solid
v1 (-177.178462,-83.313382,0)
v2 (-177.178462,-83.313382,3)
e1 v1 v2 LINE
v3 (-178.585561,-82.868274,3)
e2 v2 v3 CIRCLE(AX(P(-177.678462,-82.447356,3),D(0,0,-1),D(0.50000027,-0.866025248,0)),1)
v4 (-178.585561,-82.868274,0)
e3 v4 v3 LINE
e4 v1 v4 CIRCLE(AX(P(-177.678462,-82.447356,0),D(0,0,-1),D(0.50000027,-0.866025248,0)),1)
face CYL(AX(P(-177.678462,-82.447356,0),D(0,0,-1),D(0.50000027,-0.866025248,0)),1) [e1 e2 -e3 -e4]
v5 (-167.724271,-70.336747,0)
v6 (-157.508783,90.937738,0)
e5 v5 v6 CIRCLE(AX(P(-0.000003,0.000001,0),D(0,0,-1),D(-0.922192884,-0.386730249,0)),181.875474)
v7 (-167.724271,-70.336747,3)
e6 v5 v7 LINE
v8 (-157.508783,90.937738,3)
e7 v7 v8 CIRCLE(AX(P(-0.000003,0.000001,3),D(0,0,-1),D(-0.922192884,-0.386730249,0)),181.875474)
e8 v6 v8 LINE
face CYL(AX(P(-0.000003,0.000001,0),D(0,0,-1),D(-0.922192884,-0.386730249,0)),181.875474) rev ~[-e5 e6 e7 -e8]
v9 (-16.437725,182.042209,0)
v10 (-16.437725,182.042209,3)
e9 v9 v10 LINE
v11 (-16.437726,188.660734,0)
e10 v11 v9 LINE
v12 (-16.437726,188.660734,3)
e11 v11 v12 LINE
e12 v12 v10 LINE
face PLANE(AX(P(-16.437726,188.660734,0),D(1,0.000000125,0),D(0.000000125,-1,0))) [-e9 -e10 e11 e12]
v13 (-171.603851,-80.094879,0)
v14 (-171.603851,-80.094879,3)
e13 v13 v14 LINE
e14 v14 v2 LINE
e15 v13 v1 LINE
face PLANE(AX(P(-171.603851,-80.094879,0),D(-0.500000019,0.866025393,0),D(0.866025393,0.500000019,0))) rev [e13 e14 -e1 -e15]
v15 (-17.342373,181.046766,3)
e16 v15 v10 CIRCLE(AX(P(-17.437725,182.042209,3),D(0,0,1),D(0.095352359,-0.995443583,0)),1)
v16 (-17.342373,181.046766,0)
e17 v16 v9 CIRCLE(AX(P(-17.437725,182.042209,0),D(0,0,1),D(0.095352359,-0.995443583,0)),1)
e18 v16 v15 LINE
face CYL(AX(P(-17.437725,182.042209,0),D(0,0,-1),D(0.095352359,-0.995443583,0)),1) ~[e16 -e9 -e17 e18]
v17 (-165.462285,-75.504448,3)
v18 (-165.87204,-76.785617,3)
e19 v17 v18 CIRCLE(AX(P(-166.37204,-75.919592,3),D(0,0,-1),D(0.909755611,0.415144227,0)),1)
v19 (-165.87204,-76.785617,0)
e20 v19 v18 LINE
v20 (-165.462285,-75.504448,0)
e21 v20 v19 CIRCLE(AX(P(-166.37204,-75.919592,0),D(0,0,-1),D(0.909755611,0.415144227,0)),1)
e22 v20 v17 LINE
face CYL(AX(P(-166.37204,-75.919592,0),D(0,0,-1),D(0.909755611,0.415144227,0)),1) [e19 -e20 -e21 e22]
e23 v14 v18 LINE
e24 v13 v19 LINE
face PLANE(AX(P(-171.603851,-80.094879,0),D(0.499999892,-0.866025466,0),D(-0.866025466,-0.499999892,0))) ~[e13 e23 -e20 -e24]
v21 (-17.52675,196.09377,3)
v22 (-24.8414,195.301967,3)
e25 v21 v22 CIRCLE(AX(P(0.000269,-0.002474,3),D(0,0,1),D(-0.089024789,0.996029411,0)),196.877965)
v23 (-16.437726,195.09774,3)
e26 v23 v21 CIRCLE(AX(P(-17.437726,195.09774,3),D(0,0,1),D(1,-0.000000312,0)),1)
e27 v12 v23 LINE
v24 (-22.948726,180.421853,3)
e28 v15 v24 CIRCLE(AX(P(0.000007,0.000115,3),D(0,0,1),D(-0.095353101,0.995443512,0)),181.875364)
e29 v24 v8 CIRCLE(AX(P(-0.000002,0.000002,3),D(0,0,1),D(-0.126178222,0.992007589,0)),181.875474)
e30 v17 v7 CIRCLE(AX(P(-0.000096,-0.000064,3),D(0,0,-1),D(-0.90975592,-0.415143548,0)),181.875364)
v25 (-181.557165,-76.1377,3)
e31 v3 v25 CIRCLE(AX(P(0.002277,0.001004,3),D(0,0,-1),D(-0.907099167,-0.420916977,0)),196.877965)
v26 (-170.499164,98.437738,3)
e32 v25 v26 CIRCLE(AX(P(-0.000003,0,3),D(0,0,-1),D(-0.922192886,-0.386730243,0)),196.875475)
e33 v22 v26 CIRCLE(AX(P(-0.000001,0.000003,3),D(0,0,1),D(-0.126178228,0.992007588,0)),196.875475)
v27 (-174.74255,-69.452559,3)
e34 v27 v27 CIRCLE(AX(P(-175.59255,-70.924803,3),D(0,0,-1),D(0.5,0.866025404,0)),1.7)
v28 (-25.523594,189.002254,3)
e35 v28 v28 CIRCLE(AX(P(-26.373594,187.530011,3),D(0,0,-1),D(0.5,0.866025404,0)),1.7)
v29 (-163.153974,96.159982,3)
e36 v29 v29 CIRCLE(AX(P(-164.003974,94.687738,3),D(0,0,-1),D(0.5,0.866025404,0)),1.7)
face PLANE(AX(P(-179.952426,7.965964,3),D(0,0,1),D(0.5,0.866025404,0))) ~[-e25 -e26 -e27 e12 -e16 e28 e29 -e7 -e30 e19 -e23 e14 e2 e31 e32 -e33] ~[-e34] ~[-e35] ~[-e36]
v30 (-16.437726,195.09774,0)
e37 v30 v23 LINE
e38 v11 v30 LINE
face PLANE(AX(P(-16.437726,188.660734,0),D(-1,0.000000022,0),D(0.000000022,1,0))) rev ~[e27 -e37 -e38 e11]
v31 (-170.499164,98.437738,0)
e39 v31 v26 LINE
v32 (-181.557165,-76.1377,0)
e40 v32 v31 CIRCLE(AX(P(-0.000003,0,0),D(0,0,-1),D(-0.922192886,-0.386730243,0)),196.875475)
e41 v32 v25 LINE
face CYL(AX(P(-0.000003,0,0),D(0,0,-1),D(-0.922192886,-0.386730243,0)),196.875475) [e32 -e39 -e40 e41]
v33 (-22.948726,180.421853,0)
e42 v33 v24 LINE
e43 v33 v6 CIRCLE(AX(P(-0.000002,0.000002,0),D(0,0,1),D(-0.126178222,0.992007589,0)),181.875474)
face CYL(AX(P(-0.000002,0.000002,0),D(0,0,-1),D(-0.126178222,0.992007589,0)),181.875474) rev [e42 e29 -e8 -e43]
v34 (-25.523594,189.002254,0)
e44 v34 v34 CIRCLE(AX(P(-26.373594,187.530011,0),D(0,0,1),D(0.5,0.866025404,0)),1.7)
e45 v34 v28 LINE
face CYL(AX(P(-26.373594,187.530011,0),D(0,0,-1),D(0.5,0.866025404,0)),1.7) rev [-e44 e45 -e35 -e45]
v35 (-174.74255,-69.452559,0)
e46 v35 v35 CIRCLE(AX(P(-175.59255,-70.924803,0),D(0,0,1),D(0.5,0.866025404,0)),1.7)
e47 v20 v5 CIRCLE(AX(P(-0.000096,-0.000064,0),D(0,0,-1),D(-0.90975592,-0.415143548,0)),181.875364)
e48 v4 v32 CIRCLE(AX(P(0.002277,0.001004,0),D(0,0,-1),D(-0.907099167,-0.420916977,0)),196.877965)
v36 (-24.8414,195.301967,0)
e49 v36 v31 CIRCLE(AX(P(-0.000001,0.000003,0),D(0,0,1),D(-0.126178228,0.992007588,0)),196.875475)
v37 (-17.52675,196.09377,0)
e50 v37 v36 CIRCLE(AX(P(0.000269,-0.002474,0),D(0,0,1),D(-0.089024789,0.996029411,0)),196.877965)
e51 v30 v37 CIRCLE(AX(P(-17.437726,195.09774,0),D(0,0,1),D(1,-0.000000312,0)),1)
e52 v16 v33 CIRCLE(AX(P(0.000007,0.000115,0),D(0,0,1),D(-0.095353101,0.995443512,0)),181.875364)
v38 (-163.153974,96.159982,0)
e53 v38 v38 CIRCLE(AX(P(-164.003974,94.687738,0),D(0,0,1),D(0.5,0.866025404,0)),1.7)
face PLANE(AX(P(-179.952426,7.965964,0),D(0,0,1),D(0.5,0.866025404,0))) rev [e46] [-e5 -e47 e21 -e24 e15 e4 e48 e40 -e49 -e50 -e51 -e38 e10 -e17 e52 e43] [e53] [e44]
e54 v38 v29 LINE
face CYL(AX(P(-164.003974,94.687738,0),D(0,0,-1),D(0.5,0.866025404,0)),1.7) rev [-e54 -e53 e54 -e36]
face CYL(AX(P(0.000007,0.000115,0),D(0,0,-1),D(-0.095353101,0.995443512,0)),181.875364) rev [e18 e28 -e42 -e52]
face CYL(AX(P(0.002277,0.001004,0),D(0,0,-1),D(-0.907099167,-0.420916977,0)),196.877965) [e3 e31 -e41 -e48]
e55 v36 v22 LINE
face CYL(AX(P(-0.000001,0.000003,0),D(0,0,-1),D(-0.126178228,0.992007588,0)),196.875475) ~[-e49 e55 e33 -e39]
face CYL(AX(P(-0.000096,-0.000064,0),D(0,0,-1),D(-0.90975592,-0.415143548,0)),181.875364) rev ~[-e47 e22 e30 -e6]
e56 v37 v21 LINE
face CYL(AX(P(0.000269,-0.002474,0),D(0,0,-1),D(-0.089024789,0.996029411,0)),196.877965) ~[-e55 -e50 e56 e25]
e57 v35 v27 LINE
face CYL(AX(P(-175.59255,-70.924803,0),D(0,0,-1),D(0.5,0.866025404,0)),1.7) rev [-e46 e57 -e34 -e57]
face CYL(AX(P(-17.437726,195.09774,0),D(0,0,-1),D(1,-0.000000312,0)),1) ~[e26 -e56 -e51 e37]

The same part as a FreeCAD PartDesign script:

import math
import FreeCAD as App
import Part
import Sketcher

doc = App.newDocument("Part")
params = doc.addObject("Spreadsheet::Sheet", "Params")
for row, (alias, value) in enumerate([
    ("sketch1_radius", "1 mm"),
    ("sketch1_radius2", "1 mm"),
    ("sketch1_height", "15 mm"),
    ("sketch1_width", "0.5 mm"),
    ("pad1_length", "3 mm"),
    ("sketch2_diameter", "3.4 mm"),
    ("sketch3_diameter", "3.4 mm"),
], start=1):
    params.set(f"A{row}", alias)
    params.set(f"B{row}", "=" + value)
    params.setAlias(f"B{row}", alias)

body = doc.addObject("PartDesign::Body", "Body")

# Sketch on XY plane
sketch1 = body.newObject("Sketcher::SketchObject", "Sketch")
sketch1.AttachmentSupport = (doc.getObject("XY_Plane"), [""])
sketch1.MapMode = "FlatFace"
sketch1.addGeometry([
    Part.ArcOfCircle(Part.Circle(App.Vector(0.000001, 0.000002, 0), App.Vector(0, 0, 1), 196.875475), math.radians(37.248802), math.radians(90)),  # 0
    Part.LineSegment(App.Vector(0, 196.875477, 0), App.Vector(0, 181.875477, 0)),  # 1
    Part.ArcOfCircle(Part.Circle(App.Vector(0.000001, 0.000003, 0), App.Vector(0, 0, 1), 181.875474), math.radians(37.248802), math.radians(90)),  # 2
    Part.ArcOfCircle(Part.Circle(App.Vector(0.000103, 0.000051, 0), App.Vector(0, 0, 1), 181.875364), math.radians(35.471643), math.radians(37.248809)),  # 3
    Part.ArcOfCircle(Part.Circle(App.Vector(148.934315, 106.122617, 0), App.Vector(0, 0, 1), 1), math.radians(-144.528399), math.radians(-60.000001)),  # 4
    Part.LineSegment(App.Vector(149.434315, 105.256592, 0), App.Vector(155.166125, 108.565855, 0)),  # 5
    Part.LineSegment(App.Vector(155.166125, 108.565855, 0), App.Vector(160.740736, 111.784358, 0)),  # 6
    Part.ArcOfCircle(Part.Circle(App.Vector(160.240736, 112.650384, 0), App.Vector(0, 0, 1), 1), math.radians(-60.000018), math.radians(35.10748)),  # 7
    Part.ArcOfCircle(Part.Circle(App.Vector(-0.002008, -0.00147, 0), App.Vector(0, 0, 1), 196.877965), math.radians(35.107506), math.radians(37.248789)),  # 8
], False)
sketch1.addConstraint([
    Sketcher.Constraint("Coincident", 0, 2, 1, 1),
    Sketcher.Constraint("Coincident", 1, 2, 2, 2),
    Sketcher.Constraint("Coincident", 2, 1, 3, 2),
    Sketcher.Constraint("Coincident", 3, 1, 4, 1),
    Sketcher.Constraint("Coincident", 4, 2, 5, 1),
    Sketcher.Constraint("Coincident", 5, 2, 6, 1),
    Sketcher.Constraint("Coincident", 6, 2, 7, 1),
    Sketcher.Constraint("Coincident", 7, 2, 8, 1),
    Sketcher.Constraint("Coincident", 8, 2, 0, 1),
    Sketcher.Constraint("Vertical", 1),
    Sketcher.Constraint("Coincident", 0, 3, -1, 1),
    Sketcher.Constraint("Coincident", 2, 3, -1, 1),
    Sketcher.Constraint("PointOnObject", 0, 2, -2),
    Sketcher.Constraint("Radius", 4, 1.0),
    Sketcher.Constraint("Radius", 7, 1.0),
    Sketcher.Constraint("DistanceY", 1, 2, 1, 1, 15.0),
    Sketcher.Constraint("DistanceX", 4, 3, 4, 2, 0.5),
    Sketcher.Constraint("DistanceX", 7, 3, 6, 2, 0.5),
    Sketcher.Constraint("Radius", 0, 196.875475),
    Sketcher.Constraint("Radius", 3, 181.875364),
    Sketcher.Constraint("Radius", 8, 196.877965),
    Sketcher.Constraint("DistanceX", 0, 3, 3, 3, 0.000102),
    Sketcher.Constraint("DistanceY", 3, 1, 4, 3, 0.580299),
    Sketcher.Constraint("DistanceY", 8, 3, -1, 1, 0.00147),
    Sketcher.Constraint("DistanceX", -1, 1, 3, 1, 148.119912),
    Sketcher.Constraint("DistanceX", -1, 1, 7, 2, 161.058811),
    Sketcher.Constraint("DistanceX", 4, 3, 7, 3, 11.306421),
    Sketcher.Constraint("DistanceX", 2, 1, 4, 3, 4.15877),
    Sketcher.Constraint("DistanceX", 5, 2, 7, 3, 5.074611),
    Sketcher.Constraint("DistanceY", 5, 2, 7, 3, 4.084529),
    Sketcher.Constraint("DistanceY", 7, 2, 8, 2, 5.938771),
])
sketch1.setExpression("Constraints[13]", "Params.sketch1_radius")
sketch1.setExpression("Constraints[14]", "Params.sketch1_radius2")
sketch1.setExpression("Constraints[15]", "Params.sketch1_height")
sketch1.setExpression("Constraints[16]", "Params.sketch1_width")
pad1 = body.newObject("PartDesign::Pad", "Pad")
pad1.Profile = sketch1
pad1.setExpression("Length", "Params.pad1_length")
doc.recompute()

mirrored = body.newObject("PartDesign::Mirrored", "Mirrored")
mirrored.Originals = [pad1]
mirrored.MirrorPlane = (doc.getObject("YZ_Plane"), [""])
body.Tip = mirrored

# Sketch on XY plane
sketch2 = body.newObject("Sketcher::SketchObject", "Sketch001")
sketch2.AttachmentSupport = (doc.getObject("XY_Plane"), [""])
sketch2.MapMode = "FlatFace"
sketch2.addGeometry([
    Part.Circle(App.Vector(149.2, 116.6, 0), App.Vector(0, 0, 1), 1.7),
    Part.Circle(App.Vector(-149.2, 116.6, 0), App.Vector(0, 0, 1), 1.7),
], False)
sketch2.addConstraint([
    Sketcher.Constraint("Equal", 0, 1),
    Sketcher.Constraint("Symmetric", 0, 3, 1, 3, -2),
    Sketcher.Constraint("Diameter", 0, 3.4),
    Sketcher.Constraint("DistanceY", -1, 1, 0, 3, 116.605208),
    Sketcher.Constraint("DistanceX", 1, 3, 0, 3, 298.437912),
])
sketch2.setExpression("Constraints[2]", "Params.sketch2_diameter")
pocket1 = body.newObject("PartDesign::Pocket", "Pocket")
pocket1.Profile = sketch2
pocket1.Type = "ThroughAll"
pocket1.Midplane = True

# Sketch on XY plane
sketch3 = body.newObject("Sketcher::SketchObject", "Sketch002")
sketch3.AttachmentSupport = (doc.getObject("XY_Plane"), [""])
sketch3.MapMode = "FlatFace"
sketch3.addGeometry(Part.Circle(App.Vector(0, 189.4, 0), App.Vector(0, 0, 1), 1.7), False)
sketch3.addConstraint([
    Sketcher.Constraint("PointOnObject", 0, 3, -2),
    Sketcher.Constraint("Diameter", 0, 3.4),
    Sketcher.Constraint("DistanceY", -1, 1, 0, 3, 189.375477),
])
sketch3.setExpression("Constraints[1]", "Params.sketch3_diameter")
pocket2 = body.newObject("PartDesign::Pocket", "Pocket001")
pocket2.Profile = sketch3
pocket2.Type = "ThroughAll"
pocket2.Midplane = True
body2 = doc.addObject("PartDesign::Body", "Body001")
doc.recompute()

body.Placement = App.Placement(App.Vector(0, 0, 0), App.Rotation(App.Vector(0, 0, 1), 60))
boolean = body2.newObject("PartDesign::Boolean", "Boolean")
boolean.Type = "Fuse"
boolean.addObjects([body])

doc.recompute()
